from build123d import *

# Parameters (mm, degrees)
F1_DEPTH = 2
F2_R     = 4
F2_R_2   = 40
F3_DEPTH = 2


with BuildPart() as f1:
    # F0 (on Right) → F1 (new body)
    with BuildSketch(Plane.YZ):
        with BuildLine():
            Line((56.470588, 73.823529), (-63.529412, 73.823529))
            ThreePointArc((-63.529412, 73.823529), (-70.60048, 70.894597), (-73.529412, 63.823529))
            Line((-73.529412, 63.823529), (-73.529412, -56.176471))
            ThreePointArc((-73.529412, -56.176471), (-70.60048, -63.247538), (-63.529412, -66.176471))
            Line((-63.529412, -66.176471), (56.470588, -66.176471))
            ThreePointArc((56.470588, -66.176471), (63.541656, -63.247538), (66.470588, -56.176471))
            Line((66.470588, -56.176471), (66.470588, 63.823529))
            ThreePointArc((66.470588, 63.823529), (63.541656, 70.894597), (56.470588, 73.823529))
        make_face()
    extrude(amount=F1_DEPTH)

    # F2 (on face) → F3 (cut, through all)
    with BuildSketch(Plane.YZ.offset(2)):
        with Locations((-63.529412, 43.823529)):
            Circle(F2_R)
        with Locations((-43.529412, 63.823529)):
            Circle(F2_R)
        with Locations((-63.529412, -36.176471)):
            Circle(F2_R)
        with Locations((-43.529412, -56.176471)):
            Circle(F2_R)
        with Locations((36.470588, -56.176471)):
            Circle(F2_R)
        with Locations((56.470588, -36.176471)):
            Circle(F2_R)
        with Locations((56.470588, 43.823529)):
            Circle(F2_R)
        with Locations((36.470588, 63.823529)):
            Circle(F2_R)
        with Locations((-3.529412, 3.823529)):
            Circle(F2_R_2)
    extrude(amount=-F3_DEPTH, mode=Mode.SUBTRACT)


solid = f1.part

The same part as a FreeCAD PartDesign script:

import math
import FreeCAD as App
import Part
import Sketcher
Q = App.Units.Quantity

doc = App.newDocument("Part")
params = doc.addObject("Spreadsheet::Sheet", "Params")
for row, (alias, value) in enumerate([
    ("sketch1_radius", "9.999999 mm"),
    ("sketch1_width", "120 mm"),
    ("pad1_length", "2 mm"),
    ("sketch2_diameter", "8 mm"),
    ("sketch2_diameter2", "80 mm"),
], start=1):
    params.set(f"A{row}", alias)
    params.set(f"B{row}", "=" + value)
    params.setAlias(f"B{row}", alias)

body = doc.addObject("PartDesign::Body", "Body")

sketch1 = body.newObject("Sketcher::SketchObject", "Sketch")
sketch1.AttachmentSupport = (doc.getObject("YZ_Plane"), [""])
sketch1.MapMode = "FlatFace"
sketch1.addGeometry(Part.LineSegment(App.Vector(56, 74, 0), App.Vector(-64, 74, 0)), False)
sketch1.addGeometry(Part.ArcOfCircle(Part.Circle(App.Vector(-64, 64, 0), App.Vector(0, 0, 1), 10), math.radians(90), math.radians(180)), False)
sketch1.addGeometry(Part.LineSegment(App.Vector(-74, 64, 0), App.Vector(-74, -56, 0)), False)
sketch1.addGeometry(Part.ArcOfCircle(Part.Circle(App.Vector(-64, -56, 0), App.Vector(0, 0, 1), 10), math.radians(-180), math.radians(-90)), False)
sketch1.addGeometry(Part.LineSegment(App.Vector(-64, -66, 0), App.Vector(56, -66, 0)), False)
sketch1.addGeometry(Part.ArcOfCircle(Part.Circle(App.Vector(56, -56, 0), App.Vector(0, 0, 1), 10), math.radians(-90), math.radians(0)), False)
sketch1.addGeometry(Part.LineSegment(App.Vector(66, -56, 0), App.Vector(66, 64, 0)), False)
sketch1.addGeometry(Part.ArcOfCircle(Part.Circle(App.Vector(56, 64, 0), App.Vector(0, 0, 1), 10), math.radians(0), math.radians(90)), False)
sketch1.addConstraint(Sketcher.Constraint("Tangent", 0, 2, 1, 1))
sketch1.addConstraint(Sketcher.Constraint("Tangent", 1, 2, 2, 1))
sketch1.addConstraint(Sketcher.Constraint("Tangent", 2, 2, 3, 1))
sketch1.addConstraint(Sketcher.Constraint("Tangent", 3, 2, 4, 1))
sketch1.addConstraint(Sketcher.Constraint("Tangent", 4, 2, 5, 1))
sketch1.addConstraint(Sketcher.Constraint("Tangent", 5, 2, 6, 1))
sketch1.addConstraint(Sketcher.Constraint("Tangent", 6, 2, 7, 1))
sketch1.addConstraint(Sketcher.Constraint("Tangent", 7, 2, 0, 1))
sketch1.addConstraint(Sketcher.Constraint("Horizontal", 0))
sketch1.addConstraint(Sketcher.Constraint("Vertical", 2))
sketch1.addConstraint(Sketcher.Constraint("Horizontal", 4))
sketch1.addConstraint(Sketcher.Constraint("Vertical", 6))
sketch1.addConstraint(Sketcher.Constraint("Equal", 1, 3))
sketch1.addConstraint(Sketcher.Constraint("Equal", 3, 5))
sketch1.addConstraint(Sketcher.Constraint("Equal", 5, 7))
sketch1.addConstraint(Sketcher.Constraint("Equal", 4, 2))
sketch1.addConstraint(Sketcher.Constraint("Radius", 1, Q("9.999999 mm")))
sketch1.addConstraint(Sketcher.Constraint("DistanceX", 0, 2, 0, 1, Q("120 mm")))
sketch1.addConstraint(Sketcher.Constraint("DistanceY", -1, 1, 1, 3, Q("63.82353 mm")))
sketch1.addConstraint(Sketcher.Constraint("DistanceX", 3, 3, -1, 1, Q("63.529411 mm")))
sketch1.setExpression("Constraints[16]", "Params.sketch1_radius")
sketch1.setExpression("Constraints[17]", "Params.sketch1_width")
pad1 = body.newObject("PartDesign::Pad", "Pad")
pad1.Profile = sketch1
pad1.setExpression("Length", "Params.pad1_length")

sketch2 = body.newObject("Sketcher::SketchObject", "Sketch001")
sketch2.AttachmentSupport = (doc.getObject("YZ_Plane"), [""])
sketch2.MapMode = "FlatFace"
sketch2.AttachmentOffset = App.Placement(App.Vector(0, 0, 2), App.Rotation())
sketch2.addGeometry(Part.Circle(App.Vector(-63.5, 43.8, 0), App.Vector(0, 0, 1), 4), False)
sketch2.addGeometry(Part.Circle(App.Vector(-43.5, 63.8, 0), App.Vector(0, 0, 1), 4), False)
sketch2.addGeometry(Part.Circle(App.Vector(-63.5, -36.2, 0), App.Vector(0, 0, 1), 4), False)
sketch2.addGeometry(Part.Circle(App.Vector(-43.5, -56.2, 0), App.Vector(0, 0, 1), 4), False)
sketch2.addGeometry(Part.Circle(App.Vector(36.5, -56.2, 0), App.Vector(0, 0, 1), 4), False)
sketch2.addGeometry(Part.Circle(App.Vector(56.5, -36.2, 0), App.Vector(0, 0, 1), 4), False)
sketch2.addGeometry(Part.Circle(App.Vector(56.5, 43.8, 0), App.Vector(0, 0, 1), 4), False)
sketch2.addGeometry(Part.Circle(App.Vector(36.5, 63.8, 0), App.Vector(0, 0, 1), 4), False)
sketch2.addGeometry(Part.Circle(App.Vector(-3.5, 3.8, 0), App.Vector(0, 0, 1), 40), False)
sketch2.addConstraint(Sketcher.Constraint("Equal", 0, 1))
sketch2.addConstraint(Sketcher.Constraint("Equal", 1, 2))
sketch2.addConstraint(Sketcher.Constraint("Equal", 2, 3))
sketch2.addConstraint(Sketcher.Constraint("Equal", 3, 4))
sketch2.addConstraint(Sketcher.Constraint("Equal", 4, 5))
sketch2.addConstraint(Sketcher.Constraint("Equal", 5, 6))
sketch2.addConstraint(Sketcher.Constraint("Equal", 6, 7))
sketch2.addConstraint(Sketcher.Constraint("Horizontal", 3, 3, 4, 3))
sketch2.addConstraint(Sketcher.Constraint("Horizontal", 2, 3, 5, 3))
sketch2.addConstraint(Sketcher.Constraint("Horizontal", 0, 3, 6, 3))
sketch2.addConstraint(Sketcher.Constraint("Horizontal", 1, 3, 7, 3))
sketch2.addConstraint(Sketcher.Constraint("Vertical", 0, 3, 2, 3))
sketch2.addConstraint(Sketcher.Constraint("Vertical", 1, 3, 3, 3))
sketch2.addConstraint(Sketcher.Constraint("Vertical", 5, 3, 6, 3))
sketch2.addConstraint(Sketcher.Constraint("Vertical", 4, 3, 7, 3))
sketch2.addConstraint(Sketcher.Constraint("Diameter", 0, Q("8 mm")))
sketch2.addConstraint(Sketcher.Constraint("Diameter", 8, Q("80 mm")))
sketch2.addConstraint(Sketcher.Constraint("DistanceX", 0, 3, 1, 3, Q("20 mm")))
sketch2.addConstraint(Sketcher.Constraint("DistanceY", 0, 3, 1, 3, Q("20 mm")))
sketch2.addConstraint(Sketcher.Constraint("DistanceY", 2, 3, 0, 3, Q("80 mm")))
sketch2.addConstraint(Sketcher.Constraint("DistanceY", 3, 3, 2, 3, Q("20 mm")))
sketch2.addConstraint(Sketcher.Constraint("DistanceX", 3, 3, 4, 3, Q("80 mm")))
sketch2.addConstraint(Sketcher.Constraint("DistanceX", 4, 3, 5, 3, Q("20 mm")))
sketch2.addConstraint(Sketcher.Constraint("DistanceX", 0, 3, 8, 3, Q("60 mm")))
sketch2.addConstraint(Sketcher.Constraint("DistanceY", 8, 3, 0, 3, Q("40 mm")))
sketch2.addConstraint(Sketcher.Constraint("DistanceY", -1, 1, 0, 3, Q("43.823529 mm")))
sketch2.addConstraint(Sketcher.Constraint("DistanceX", 0, 3, -1, 1, Q("63.529412 mm")))
sketch2.setExpression("Constraints[15]", "Params.sketch2_diameter")
sketch2.setExpression("Constraints[16]", "Params.sketch2_diameter2")
pocket1 = body.newObject("PartDesign::Pocket", "Pocket")
pocket1.Profile = sketch2
pocket1.Type = "ThroughAll"

doc.recompute()
